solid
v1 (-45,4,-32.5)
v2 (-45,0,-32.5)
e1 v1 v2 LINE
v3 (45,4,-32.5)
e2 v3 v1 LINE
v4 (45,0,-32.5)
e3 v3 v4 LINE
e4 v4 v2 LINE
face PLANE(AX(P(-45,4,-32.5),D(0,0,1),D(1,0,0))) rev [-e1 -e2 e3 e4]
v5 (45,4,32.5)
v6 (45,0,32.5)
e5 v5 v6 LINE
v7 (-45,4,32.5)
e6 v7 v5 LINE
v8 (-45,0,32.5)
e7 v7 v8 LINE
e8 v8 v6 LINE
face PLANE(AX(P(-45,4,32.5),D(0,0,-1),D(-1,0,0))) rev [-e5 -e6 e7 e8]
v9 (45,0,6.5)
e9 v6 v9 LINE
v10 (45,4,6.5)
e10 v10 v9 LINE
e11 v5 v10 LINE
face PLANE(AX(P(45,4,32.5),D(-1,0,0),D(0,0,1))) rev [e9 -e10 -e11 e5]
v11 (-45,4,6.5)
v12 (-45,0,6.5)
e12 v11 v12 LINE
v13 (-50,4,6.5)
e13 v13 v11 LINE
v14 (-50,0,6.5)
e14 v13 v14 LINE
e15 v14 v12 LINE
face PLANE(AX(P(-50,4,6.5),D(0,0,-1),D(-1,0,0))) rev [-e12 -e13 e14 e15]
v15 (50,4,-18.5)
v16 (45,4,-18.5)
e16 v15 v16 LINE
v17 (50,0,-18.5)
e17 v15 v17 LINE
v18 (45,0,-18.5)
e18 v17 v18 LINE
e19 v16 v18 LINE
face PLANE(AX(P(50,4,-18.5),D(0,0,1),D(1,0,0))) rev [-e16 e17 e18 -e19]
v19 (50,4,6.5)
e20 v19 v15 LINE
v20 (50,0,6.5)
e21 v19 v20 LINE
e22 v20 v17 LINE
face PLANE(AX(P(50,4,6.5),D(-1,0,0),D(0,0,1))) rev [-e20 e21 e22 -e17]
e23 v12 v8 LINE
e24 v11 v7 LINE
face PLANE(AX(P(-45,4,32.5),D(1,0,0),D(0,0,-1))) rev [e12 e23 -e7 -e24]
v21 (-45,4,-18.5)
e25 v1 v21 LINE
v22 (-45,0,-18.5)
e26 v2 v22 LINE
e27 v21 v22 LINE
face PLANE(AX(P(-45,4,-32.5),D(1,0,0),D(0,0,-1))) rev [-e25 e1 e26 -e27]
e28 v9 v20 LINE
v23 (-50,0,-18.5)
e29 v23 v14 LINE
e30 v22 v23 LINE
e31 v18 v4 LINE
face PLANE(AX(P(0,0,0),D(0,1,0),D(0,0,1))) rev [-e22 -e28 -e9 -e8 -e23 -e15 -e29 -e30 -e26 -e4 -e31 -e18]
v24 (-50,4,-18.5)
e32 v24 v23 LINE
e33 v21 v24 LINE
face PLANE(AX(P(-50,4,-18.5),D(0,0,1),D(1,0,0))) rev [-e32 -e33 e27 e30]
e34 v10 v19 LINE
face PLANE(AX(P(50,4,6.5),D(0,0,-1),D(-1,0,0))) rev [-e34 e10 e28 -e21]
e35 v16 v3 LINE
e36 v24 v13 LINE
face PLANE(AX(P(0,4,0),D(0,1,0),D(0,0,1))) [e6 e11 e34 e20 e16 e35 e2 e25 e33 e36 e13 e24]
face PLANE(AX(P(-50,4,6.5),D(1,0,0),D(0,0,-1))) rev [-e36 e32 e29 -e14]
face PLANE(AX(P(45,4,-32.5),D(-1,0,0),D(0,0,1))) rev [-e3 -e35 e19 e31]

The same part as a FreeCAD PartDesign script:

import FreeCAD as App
import Part
import Sketcher

doc = App.newDocument("Part")
params = doc.addObject("Spreadsheet::Sheet", "Params")
for row, (alias, value) in enumerate([
    ("sketch1_width", "90 mm"),
    ("sketch1_width2", "5 mm"),
    ("sketch1_height", "26 mm"),
    ("sketch1_height2", "25 mm"),
    ("sketch1_height3", "14 mm"),
    ("pad1_length", "4 mm"),
], start=1):
    params.set(f"A{row}", alias)
    params.set(f"B{row}", "=" + value)
    params.setAlias(f"B{row}", alias)

body = doc.addObject("PartDesign::Body", "Body")

# Sketch on XZ plane
sketch1 = body.newObject("Sketcher::SketchObject", "Sketch")
sketch1.AttachmentSupport = (doc.getObject("XZ_Plane"), [""])
sketch1.MapMode = "FlatFace"
sketch1.addGeometry(Part.LineSegment(App.Vector(-45, 32, 0), App.Vector(45, 32, 0)), False)
sketch1.addGeometry(Part.LineSegment(App.Vector(45, 32, 0), App.Vector(45, 6, 0)), False)
sketch1.addGeometry(Part.LineSegment(App.Vector(45, 6, 0), App.Vector(50, 6, 0)), False)
sketch1.addGeometry(Part.LineSegment(App.Vector(50, 6, 0), App.Vector(50, -18, 0)), False)
sketch1.addGeometry(Part.LineSegment(App.Vector(50, -18, 0), App.Vector(45, -18, 0)), False)
sketch1.addGeometry(Part.LineSegment(App.Vector(45, -18, 0), App.Vector(45, -32, 0)), False)
sketch1.addGeometry(Part.LineSegment(App.Vector(45, -32, 0), App.Vector(-45, -32, 0)), False)
sketch1.addGeometry(Part.LineSegment(App.Vector(-45, -32, 0), App.Vector(-45, -18, 0)), False)
sketch1.addGeometry(Part.LineSegment(App.Vector(-45, -18, 0), App.Vector(-50, -18, 0)), False)
sketch1.addGeometry(Part.LineSegment(App.Vector(-50, -18, 0), App.Vector(-50, 6, 0)), False)
sketch1.addGeometry(Part.LineSegment(App.Vector(-50, 6, 0), App.Vector(-45, 6, 0)), False)
sketch1.addGeometry(Part.LineSegment(App.Vector(-45, 6, 0), App.Vector(-45, 32, 0)), False)
sketch1.addConstraint(Sketcher.Constraint("Coincident", 0, 2, 1, 1))
sketch1.addConstraint(Sketcher.Constraint("Coincident", 1, 2, 2, 1))
sketch1.addConstraint(Sketcher.Constraint("Coincident", 2, 2, 3, 1))
sketch1.addConstraint(Sketcher.Constraint("Coincident", 3, 2, 4, 1))
sketch1.addConstraint(Sketcher.Constraint("Coincident", 4, 2, 5, 1))
sketch1.addConstraint(Sketcher.Constraint("Coincident", 5, 2, 6, 1))
sketch1.addConstraint(Sketcher.Constraint("Coincident", 6, 2, 7, 1))
sketch1.addConstraint(Sketcher.Constraint("Coincident", 7, 2, 8, 1))
sketch1.addConstraint(Sketcher.Constraint("Coincident", 8, 2, 9, 1))
sketch1.addConstraint(Sketcher.Constraint("Coincident", 9, 2, 10, 1))
sketch1.addConstraint(Sketcher.Constraint("Coincident", 10, 2, 11, 1))
sketch1.addConstraint(Sketcher.Constraint("Coincident", 11, 2, 0, 1))
sketch1.addConstraint(Sketcher.Constraint("Horizontal", 0))
sketch1.addConstraint(Sketcher.Constraint("Vertical", 1))
sketch1.addConstraint(Sketcher.Constraint("Horizontal", 2))
sketch1.addConstraint(Sketcher.Constraint("Vertical", 3))
sketch1.addConstraint(Sketcher.Constraint("Horizontal", 4))
sketch1.addConstraint(Sketcher.Constraint("Vertical", 5))
sketch1.addConstraint(Sketcher.Constraint("Horizontal", 6))
sketch1.addConstraint(Sketcher.Constraint("Vertical", 7))
sketch1.addConstraint(Sketcher.Constraint("Horizontal", 8))
sketch1.addConstraint(Sketcher.Constraint("Vertical", 9))
sketch1.addConstraint(Sketcher.Constraint("Horizontal", 10))
sketch1.addConstraint(Sketcher.Constraint("Vertical", 11))
sketch1.addConstraint(Sketcher.Constraint("Symmetric", 0, 2, 6, 2, -1, 1))
sketch1.addConstraint(Sketcher.Constraint("Symmetric", 4, 2, 7, 2, -2))
sketch1.addConstraint(Sketcher.Constraint("Symmetric", 2, 2, 9, 2, -2))
sketch1.addConstraint(Sketcher.Constraint("Vertical", 7, 2, 10, 2))
sketch1.addConstraint(Sketcher.Constraint("DistanceX", 0, 1, 0, 2, 90.0))
sketch1.addConstraint(Sketcher.Constraint("DistanceX", 2, 1, 2, 2, 5.0))
sketch1.addConstraint(Sketcher.Constraint("DistanceY", 1, 2, 1, 1, 26.0))
sketch1.addConstraint(Sketcher.Constraint("DistanceY", 3, 2, 3, 1, 25.0))
sketch1.addConstraint(Sketcher.Constraint("DistanceY", 5, 2, 5, 1, 14.0))
sketch1.setExpression("Constraints[28]", "Params.sketch1_width")
sketch1.setExpression("Constraints[29]", "Params.sketch1_width2")
sketch1.setExpression("Constraints[30]", "Params.sketch1_height")
sketch1.setExpression("Constraints[31]", "Params.sketch1_height2")
sketch1.setExpression("Constraints[32]", "Params.sketch1_height3")
pad1 = body.newObject("PartDesign::Pad", "Pad")
pad1.Profile = sketch1
pad1.setExpression("Length", "Params.pad1_length")
pad1.Reversed = True

doc.recompute()
